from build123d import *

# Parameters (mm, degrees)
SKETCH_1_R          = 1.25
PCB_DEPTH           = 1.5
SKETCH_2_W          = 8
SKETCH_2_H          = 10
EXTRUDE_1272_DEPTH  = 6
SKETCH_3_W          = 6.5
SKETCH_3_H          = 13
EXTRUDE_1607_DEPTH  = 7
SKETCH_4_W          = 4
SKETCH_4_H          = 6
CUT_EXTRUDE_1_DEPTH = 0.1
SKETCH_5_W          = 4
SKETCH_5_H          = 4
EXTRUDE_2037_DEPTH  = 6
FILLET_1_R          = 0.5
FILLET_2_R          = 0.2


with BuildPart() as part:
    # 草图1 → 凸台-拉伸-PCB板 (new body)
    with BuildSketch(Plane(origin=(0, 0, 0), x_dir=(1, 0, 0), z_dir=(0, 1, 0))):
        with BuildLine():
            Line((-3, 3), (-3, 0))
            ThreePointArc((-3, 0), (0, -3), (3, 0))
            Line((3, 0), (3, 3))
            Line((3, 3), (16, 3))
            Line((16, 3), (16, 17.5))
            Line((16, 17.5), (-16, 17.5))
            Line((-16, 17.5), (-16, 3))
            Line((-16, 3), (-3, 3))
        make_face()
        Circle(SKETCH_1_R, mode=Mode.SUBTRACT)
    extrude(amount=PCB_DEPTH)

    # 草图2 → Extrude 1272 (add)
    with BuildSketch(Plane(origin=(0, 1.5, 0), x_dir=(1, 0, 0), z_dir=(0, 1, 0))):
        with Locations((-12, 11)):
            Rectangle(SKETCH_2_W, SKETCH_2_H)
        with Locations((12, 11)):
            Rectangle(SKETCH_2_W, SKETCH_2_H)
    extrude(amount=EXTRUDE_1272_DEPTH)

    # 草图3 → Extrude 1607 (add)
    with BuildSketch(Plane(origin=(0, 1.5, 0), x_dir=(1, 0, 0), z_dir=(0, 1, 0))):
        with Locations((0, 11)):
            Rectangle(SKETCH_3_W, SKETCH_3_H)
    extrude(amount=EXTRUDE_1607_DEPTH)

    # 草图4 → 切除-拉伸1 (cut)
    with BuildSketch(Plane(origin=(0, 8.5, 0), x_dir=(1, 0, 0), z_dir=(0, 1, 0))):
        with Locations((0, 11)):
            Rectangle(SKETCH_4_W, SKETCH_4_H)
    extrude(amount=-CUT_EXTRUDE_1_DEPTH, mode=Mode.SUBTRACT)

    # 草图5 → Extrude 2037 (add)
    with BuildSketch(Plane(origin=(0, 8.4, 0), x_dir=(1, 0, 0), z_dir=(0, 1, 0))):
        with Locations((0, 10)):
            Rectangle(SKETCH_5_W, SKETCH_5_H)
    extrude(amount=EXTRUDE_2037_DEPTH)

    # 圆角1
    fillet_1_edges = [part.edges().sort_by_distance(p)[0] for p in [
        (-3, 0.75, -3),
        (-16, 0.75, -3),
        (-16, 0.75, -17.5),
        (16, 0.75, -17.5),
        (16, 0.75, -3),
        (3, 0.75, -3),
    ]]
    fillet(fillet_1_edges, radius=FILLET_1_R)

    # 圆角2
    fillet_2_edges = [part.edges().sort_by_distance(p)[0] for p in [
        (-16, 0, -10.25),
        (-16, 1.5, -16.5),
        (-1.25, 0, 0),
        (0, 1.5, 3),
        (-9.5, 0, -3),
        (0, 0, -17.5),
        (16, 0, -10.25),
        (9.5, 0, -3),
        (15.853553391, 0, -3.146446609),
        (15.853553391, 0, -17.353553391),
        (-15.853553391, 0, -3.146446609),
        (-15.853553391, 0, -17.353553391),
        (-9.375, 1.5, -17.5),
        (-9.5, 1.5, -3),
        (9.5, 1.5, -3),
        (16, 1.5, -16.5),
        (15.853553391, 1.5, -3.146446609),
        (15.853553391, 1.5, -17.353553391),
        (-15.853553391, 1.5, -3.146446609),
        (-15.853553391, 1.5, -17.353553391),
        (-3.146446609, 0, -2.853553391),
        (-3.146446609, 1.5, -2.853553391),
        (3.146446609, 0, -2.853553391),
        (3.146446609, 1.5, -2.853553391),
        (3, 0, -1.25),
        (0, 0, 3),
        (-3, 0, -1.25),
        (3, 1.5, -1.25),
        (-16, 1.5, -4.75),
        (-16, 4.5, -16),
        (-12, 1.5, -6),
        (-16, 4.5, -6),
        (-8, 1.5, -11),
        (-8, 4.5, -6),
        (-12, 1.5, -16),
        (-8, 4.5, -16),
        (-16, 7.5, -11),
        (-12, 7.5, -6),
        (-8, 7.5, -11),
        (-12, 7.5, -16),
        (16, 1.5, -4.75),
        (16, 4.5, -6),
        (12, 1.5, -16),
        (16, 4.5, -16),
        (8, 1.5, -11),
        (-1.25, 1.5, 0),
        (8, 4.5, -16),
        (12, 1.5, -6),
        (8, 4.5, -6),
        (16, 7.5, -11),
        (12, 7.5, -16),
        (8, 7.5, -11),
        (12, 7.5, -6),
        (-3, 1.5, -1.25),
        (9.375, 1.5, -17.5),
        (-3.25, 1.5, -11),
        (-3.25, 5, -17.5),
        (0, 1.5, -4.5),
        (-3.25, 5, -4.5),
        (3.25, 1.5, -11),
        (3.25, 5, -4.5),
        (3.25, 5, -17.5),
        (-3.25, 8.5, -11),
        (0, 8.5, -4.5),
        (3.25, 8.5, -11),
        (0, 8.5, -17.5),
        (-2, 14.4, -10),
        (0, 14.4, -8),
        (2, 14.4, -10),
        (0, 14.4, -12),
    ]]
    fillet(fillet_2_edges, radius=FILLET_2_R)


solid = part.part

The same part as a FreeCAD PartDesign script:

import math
import FreeCAD as App
import Part
import Sketcher

V = App.Vector


def edges_at(feature, points):
    """Names of the edges that pass closest to the given points."""
    edges = feature.Shape.Edges
    near = lambda p: min(range(len(edges)), key=lambda i: edges[i].distToShape(Part.Vertex(*p))[0])
    return sorted({f"Edge{near(p) + 1}" for p in points})


def add_polygon(sketch, points):
    """Adds a closed chain of lines whose ends are joined by coincident constraints."""
    first, n = sketch.GeometryCount, len(points)
    for a, b in zip(points, points[1:] + points[:1]):
        sketch.addGeometry(Part.LineSegment(App.Vector(*a, 0), App.Vector(*b, 0)), False)
    for i in range(n):
        sketch.addConstraint(Sketcher.Constraint("Coincident", first + i, 2, first + (i + 1) % n, 1))

doc = App.newDocument("Part")
body = doc.addObject("PartDesign::Body", "Body")

# Sketch on XZ plane
sketch1 = doc.addObject("Sketcher::SketchObject", "Sketch")
body.addObject(sketch1)
sketch1.AttachmentSupport = (doc.XZ_Plane, [""])
sketch1.MapMode = "FlatFace"
sketch1.addGeometry(Part.LineSegment(V(-3, -3, 0), V(-3, 0, 0)), False)
sketch1.addGeometry(Part.ArcOfCircle(Part.Circle(V(0, 0, 0), V(0, 0, 1), 3), math.radians(0), math.radians(180)), False)
sketch1.addGeometry(Part.LineSegment(V(3, 0, 0), V(3, -3, 0)), False)
sketch1.addGeometry(Part.LineSegment(V(3, -3, 0), V(16, -3, 0)), False)
sketch1.addGeometry(Part.LineSegment(V(16, -3, 0), V(16, -17.5, 0)), False)
sketch1.addGeometry(Part.LineSegment(V(16, -17.5, 0), V(-16, -17.5, 0)), False)
sketch1.addGeometry(Part.LineSegment(V(-16, -17.5, 0), V(-16, -3, 0)), False)
sketch1.addGeometry(Part.LineSegment(V(-16, -3, 0), V(-3, -3, 0)), False)
sketch1.addGeometry(Part.Circle(V(0, 0, 0), V(0, 0, 1), 1.2), False)
sketch1.addConstraint(Sketcher.Constraint("Tangent", 0, 2, 1, 2))
sketch1.addConstraint(Sketcher.Constraint("Tangent", 1, 1, 2, 1))
sketch1.addConstraint(Sketcher.Constraint("Coincident", 2, 2, 3, 1))
sketch1.addConstraint(Sketcher.Constraint("Coincident", 3, 2, 4, 1))
sketch1.addConstraint(Sketcher.Constraint("Coincident", 4, 2, 5, 1))
sketch1.addConstraint(Sketcher.Constraint("Coincident", 5, 2, 6, 1))
sketch1.addConstraint(Sketcher.Constraint("Coincident", 6, 2, 7, 1))
sketch1.addConstraint(Sketcher.Constraint("Coincident", 7, 2, 0, 1))
sketch1.addConstraint(Sketcher.Constraint("Vertical", 0))
sketch1.addConstraint(Sketcher.Constraint("Vertical", 2))
sketch1.addConstraint(Sketcher.Constraint("Horizontal", 3))
sketch1.addConstraint(Sketcher.Constraint("Vertical", 4))
sketch1.addConstraint(Sketcher.Constraint("Horizontal", 5))
sketch1.addConstraint(Sketcher.Constraint("Vertical", 6))
sketch1.addConstraint(Sketcher.Constraint("Horizontal", 7))
sketch1.addConstraint(Sketcher.Constraint("Coincident", 1, 3, -1, 1))
sketch1.addConstraint(Sketcher.Constraint("Coincident", 8, 3, -1, 1))
sketch1.addConstraint(Sketcher.Constraint("Symmetric", 3, 2, 6, 2, -2))
sketch1.addConstraint(Sketcher.Constraint("Radius", 1, 3.0))
sketch1.addConstraint(Sketcher.Constraint("Diameter", 8, 2.5))
sketch1.addConstraint(Sketcher.Constraint("DistanceX", 3, 1, 3, 2, 13.0))
sketch1.addConstraint(Sketcher.Constraint("DistanceY", 0, 1, 0, 2, 3.0))
sketch1.addConstraint(Sketcher.Constraint("DistanceY", 4, 2, 4, 1, 14.5))
pad1 = doc.addObject("PartDesign::Pad", "Pad")
body.addObject(pad1)
pad1.Profile = sketch1
pad1.Length = 1.5
pad1.Reversed = True

# Sketch on XZ plane
sketch2 = doc.addObject("Sketcher::SketchObject", "Sketch001")
body.addObject(sketch2)
sketch2.AttachmentSupport = (doc.XZ_Plane, [""])
sketch2.MapMode = "FlatFace"
sketch2.AttachmentOffset = App.Placement(V(0, 0, -1.5), App.Rotation())
add_polygon(sketch2, [(-16, -16), (-16, -6), (-8, -6), (-8, -16)])  # lines 0-3
add_polygon(sketch2, [(8, -16), (8, -6), (16, -6), (16, -16)])  # lines 4-7
sketch2.addConstraint(Sketcher.Constraint("Vertical", 0))
sketch2.addConstraint(Sketcher.Constraint("Horizontal", 1))
sketch2.addConstraint(Sketcher.Constraint("Vertical", 2))
sketch2.addConstraint(Sketcher.Constraint("Horizontal", 3))
sketch2.addConstraint(Sketcher.Constraint("Vertical", 4))
sketch2.addConstraint(Sketcher.Constraint("Horizontal", 5))
sketch2.addConstraint(Sketcher.Constraint("Vertical", 6))
sketch2.addConstraint(Sketcher.Constraint("Horizontal", 7))
sketch2.addConstraint(Sketcher.Constraint("Symmetric", 1, 2, 4, 2, -2))
sketch2.addConstraint(Sketcher.Constraint("Symmetric", 3, 2, 6, 2, -2))
sketch2.addConstraint(Sketcher.Constraint("DistanceX", 1, 1, 1, 2, 8.0))
sketch2.addConstraint(Sketcher.Constraint("DistanceY", 0, 1, 0, 2, 10.0))
sketch2.addConstraint(Sketcher.Constraint("DistanceX", 0, 2, -1, 1, 16.0))
sketch2.addConstraint(Sketcher.Constraint("DistanceY", 0, 2, -1, 1, 6.0))
pad2 = doc.addObject("PartDesign::Pad", "Pad001")
body.addObject(pad2)
pad2.Profile = sketch2
pad2.Length = 6
pad2.Reversed = True

# Sketch on XZ plane
sketch3 = doc.addObject("Sketcher::SketchObject", "Sketch002")
body.addObject(sketch3)
sketch3.AttachmentSupport = (doc.XZ_Plane, [""])
sketch3.MapMode = "FlatFace"
sketch3.AttachmentOffset = App.Placement(V(0, 0, -1.5), App.Rotation())
add_polygon(sketch3, [(-3, -18), (-3, -4), (3, -4), (3, -18)])  # lines 0-3
sketch3.addConstraint(Sketcher.Constraint("Vertical", 0))
sketch3.addConstraint(Sketcher.Constraint("Horizontal", 1))
sketch3.addConstraint(Sketcher.Constraint("Vertical", 2))
sketch3.addConstraint(Sketcher.Constraint("Horizontal", 3))
sketch3.addConstraint(Sketcher.Constraint("DistanceY", 0, 1, 0, 2, 13.0))
sketch3.addConstraint(Sketcher.Constraint("DistanceX", 1, 1, 1, 2, 6.5))
sketch3.addConstraint(Sketcher.Constraint("DistanceY", 0, 2, -1, 1, 4.5))
sketch3.addConstraint(Sketcher.Constraint("DistanceX", 0, 2, -1, 1, 3.25))
pad3 = doc.addObject("PartDesign::Pad", "Pad002")
body.addObject(pad3)
pad3.Profile = sketch3
pad3.Length = 7
pad3.Reversed = True

# Sketch on XZ plane
sketch4 = doc.addObject("Sketcher::SketchObject", "Sketch003")
body.addObject(sketch4)
sketch4.AttachmentSupport = (doc.XZ_Plane, [""])
sketch4.MapMode = "FlatFace"
sketch4.AttachmentOffset = App.Placement(V(0, 0, -8.5), App.Rotation())
add_polygon(sketch4, [(-2, -14), (-2, -8), (2, -8), (2, -14)])  # lines 0-3
sketch4.addConstraint(Sketcher.Constraint("Vertical", 0))
sketch4.addConstraint(Sketcher.Constraint("Horizontal", 1))
sketch4.addConstraint(Sketcher.Constraint("Vertical", 2))
sketch4.addConstraint(Sketcher.Constraint("Horizontal", 3))
sketch4.addConstraint(Sketcher.Constraint("DistanceX", 1, 1, 1, 2, 4.0))
sketch4.addConstraint(Sketcher.Constraint("DistanceY", 0, 1, 0, 2, 6.0))
sketch4.addConstraint(Sketcher.Constraint("DistanceX", 0, 2, -1, 1, 2.0))
sketch4.addConstraint(Sketcher.Constraint("DistanceY", 0, 2, -1, 1, 8.0))
pocket1 = doc.addObject("PartDesign::Pocket", "Pocket")
body.addObject(pocket1)
pocket1.Profile = sketch4
pocket1.Length = 0.1
pocket1.Reversed = True

# Sketch on XZ plane
sketch5 = doc.addObject("Sketcher::SketchObject", "Sketch004")
body.addObject(sketch5)
sketch5.AttachmentSupport = (doc.XZ_Plane, [""])
sketch5.MapMode = "FlatFace"
sketch5.AttachmentOffset = App.Placement(V(0, 0, -8.4), App.Rotation())
add_polygon(sketch5, [(-2, -12), (-2, -8), (2, -8), (2, -12)])  # lines 0-3
sketch5.addConstraint(Sketcher.Constraint("Vertical", 0))
sketch5.addConstraint(Sketcher.Constraint("Horizontal", 1))
sketch5.addConstraint(Sketcher.Constraint("Vertical", 2))
sketch5.addConstraint(Sketcher.Constraint("Horizontal", 3))
sketch5.addConstraint(Sketcher.Constraint("Equal", 3, 0))
sketch5.addConstraint(Sketcher.Constraint("DistanceX", 1, 1, 1, 2, 4.0))
sketch5.addConstraint(Sketcher.Constraint("DistanceX", 0, 2, -1, 1, 2.0))
sketch5.addConstraint(Sketcher.Constraint("DistanceY", 0, 2, -1, 1, 8.0))
pad4 = doc.addObject("PartDesign::Pad", "Pad003")
body.addObject(pad4)
pad4.Profile = sketch5
pad4.Length = 6
pad4.Reversed = True
doc.recompute()

fillet = doc.addObject("PartDesign::Fillet", "Fillet")
body.addObject(fillet)
fillet.Base = (pad4, edges_at(pad4, [
    (-3, 0.75, -3),
    (-16, 0.75, -3),
    (-16, 0.75, -17.5),
    (16, 0.75, -17.5),
    (16, 0.75, -3),
    (3, 0.75, -3),
]))
fillet.Radius = 0.5
doc.recompute()

fillet2 = doc.addObject("PartDesign::Fillet", "Fillet001")
body.addObject(fillet2)
fillet2.Base = (fillet, edges_at(fillet, [
    (-16, 0, -10.25),
    (-16, 1.5, -16.5),
    (-1.25, 0, 0),
    (0, 1.5, 3),
    (-9.5, 0, -3),
    (0, 0, -17.5),
    (16, 0, -10.25),
    (9.5, 0, -3),
    (15.854, 0, -3.146),
    (15.854, 0, -17.354),
    (-15.854, 0, -3.146),
    (-15.854, 0, -17.354),
    (-9.375, 1.5, -17.5),
    (-9.5, 1.5, -3),
    (9.5, 1.5, -3),
    (16, 1.5, -16.5),
    (15.854, 1.5, -3.146),
    (15.854, 1.5, -17.354),
    (-15.854, 1.5, -3.146),
    (-15.854, 1.5, -17.354),
    (-3.146, 0, -2.854),
    (-3.146, 1.5, -2.854),
    (3.146, 0, -2.854),
    (3.146, 1.5, -2.854),
    (3, 0, -1.25),
    (0, 0, 3),
    (-3, 0, -1.25),
    (3, 1.5, -1.25),
    (-16, 1.5, -4.75),
    (-16, 4.5, -16),
    (-12, 1.5, -6),
    (-16, 4.5, -6),
    (-8, 1.5, -11),
    (-8, 4.5, -6),
    (-12, 1.5, -16),
    (-8, 4.5, -16),
    (-16, 7.5, -11),
    (-12, 7.5, -6),
    (-8, 7.5, -11),
    (-12, 7.5, -16),
    (16, 1.5, -4.75),
    (16, 4.5, -6),
    (12, 1.5, -16),
    (16, 4.5, -16),
    (8, 1.5, -11),
    (-1.25, 1.5, 0),
    (8, 4.5, -16),
    (12, 1.5, -6),
    (8, 4.5, -6),
    (16, 7.5, -11),
    (12, 7.5, -16),
    (8, 7.5, -11),
    (12, 7.5, -6),
    (-3, 1.5, -1.25),
    (9.375, 1.5, -17.5),
    (-3.25, 1.5, -11),
    (-3.25, 5, -17.5),
    (0, 1.5, -4.5),
    (-3.25, 5, -4.5),
    (3.25, 1.5, -11),
    (3.25, 5, -4.5),
    (3.25, 5, -17.5),
    (-3.25, 8.5, -11),
    (0, 8.5, -4.5),
    (3.25, 8.5, -11),
    (0, 8.5, -17.5),
    (-2, 14.4, -10),
    (0, 14.4, -8),
    (2, 14.4, -10),
    (0, 14.4, -12),
]))
fillet2.Radius = 0.2

doc.recompute()
